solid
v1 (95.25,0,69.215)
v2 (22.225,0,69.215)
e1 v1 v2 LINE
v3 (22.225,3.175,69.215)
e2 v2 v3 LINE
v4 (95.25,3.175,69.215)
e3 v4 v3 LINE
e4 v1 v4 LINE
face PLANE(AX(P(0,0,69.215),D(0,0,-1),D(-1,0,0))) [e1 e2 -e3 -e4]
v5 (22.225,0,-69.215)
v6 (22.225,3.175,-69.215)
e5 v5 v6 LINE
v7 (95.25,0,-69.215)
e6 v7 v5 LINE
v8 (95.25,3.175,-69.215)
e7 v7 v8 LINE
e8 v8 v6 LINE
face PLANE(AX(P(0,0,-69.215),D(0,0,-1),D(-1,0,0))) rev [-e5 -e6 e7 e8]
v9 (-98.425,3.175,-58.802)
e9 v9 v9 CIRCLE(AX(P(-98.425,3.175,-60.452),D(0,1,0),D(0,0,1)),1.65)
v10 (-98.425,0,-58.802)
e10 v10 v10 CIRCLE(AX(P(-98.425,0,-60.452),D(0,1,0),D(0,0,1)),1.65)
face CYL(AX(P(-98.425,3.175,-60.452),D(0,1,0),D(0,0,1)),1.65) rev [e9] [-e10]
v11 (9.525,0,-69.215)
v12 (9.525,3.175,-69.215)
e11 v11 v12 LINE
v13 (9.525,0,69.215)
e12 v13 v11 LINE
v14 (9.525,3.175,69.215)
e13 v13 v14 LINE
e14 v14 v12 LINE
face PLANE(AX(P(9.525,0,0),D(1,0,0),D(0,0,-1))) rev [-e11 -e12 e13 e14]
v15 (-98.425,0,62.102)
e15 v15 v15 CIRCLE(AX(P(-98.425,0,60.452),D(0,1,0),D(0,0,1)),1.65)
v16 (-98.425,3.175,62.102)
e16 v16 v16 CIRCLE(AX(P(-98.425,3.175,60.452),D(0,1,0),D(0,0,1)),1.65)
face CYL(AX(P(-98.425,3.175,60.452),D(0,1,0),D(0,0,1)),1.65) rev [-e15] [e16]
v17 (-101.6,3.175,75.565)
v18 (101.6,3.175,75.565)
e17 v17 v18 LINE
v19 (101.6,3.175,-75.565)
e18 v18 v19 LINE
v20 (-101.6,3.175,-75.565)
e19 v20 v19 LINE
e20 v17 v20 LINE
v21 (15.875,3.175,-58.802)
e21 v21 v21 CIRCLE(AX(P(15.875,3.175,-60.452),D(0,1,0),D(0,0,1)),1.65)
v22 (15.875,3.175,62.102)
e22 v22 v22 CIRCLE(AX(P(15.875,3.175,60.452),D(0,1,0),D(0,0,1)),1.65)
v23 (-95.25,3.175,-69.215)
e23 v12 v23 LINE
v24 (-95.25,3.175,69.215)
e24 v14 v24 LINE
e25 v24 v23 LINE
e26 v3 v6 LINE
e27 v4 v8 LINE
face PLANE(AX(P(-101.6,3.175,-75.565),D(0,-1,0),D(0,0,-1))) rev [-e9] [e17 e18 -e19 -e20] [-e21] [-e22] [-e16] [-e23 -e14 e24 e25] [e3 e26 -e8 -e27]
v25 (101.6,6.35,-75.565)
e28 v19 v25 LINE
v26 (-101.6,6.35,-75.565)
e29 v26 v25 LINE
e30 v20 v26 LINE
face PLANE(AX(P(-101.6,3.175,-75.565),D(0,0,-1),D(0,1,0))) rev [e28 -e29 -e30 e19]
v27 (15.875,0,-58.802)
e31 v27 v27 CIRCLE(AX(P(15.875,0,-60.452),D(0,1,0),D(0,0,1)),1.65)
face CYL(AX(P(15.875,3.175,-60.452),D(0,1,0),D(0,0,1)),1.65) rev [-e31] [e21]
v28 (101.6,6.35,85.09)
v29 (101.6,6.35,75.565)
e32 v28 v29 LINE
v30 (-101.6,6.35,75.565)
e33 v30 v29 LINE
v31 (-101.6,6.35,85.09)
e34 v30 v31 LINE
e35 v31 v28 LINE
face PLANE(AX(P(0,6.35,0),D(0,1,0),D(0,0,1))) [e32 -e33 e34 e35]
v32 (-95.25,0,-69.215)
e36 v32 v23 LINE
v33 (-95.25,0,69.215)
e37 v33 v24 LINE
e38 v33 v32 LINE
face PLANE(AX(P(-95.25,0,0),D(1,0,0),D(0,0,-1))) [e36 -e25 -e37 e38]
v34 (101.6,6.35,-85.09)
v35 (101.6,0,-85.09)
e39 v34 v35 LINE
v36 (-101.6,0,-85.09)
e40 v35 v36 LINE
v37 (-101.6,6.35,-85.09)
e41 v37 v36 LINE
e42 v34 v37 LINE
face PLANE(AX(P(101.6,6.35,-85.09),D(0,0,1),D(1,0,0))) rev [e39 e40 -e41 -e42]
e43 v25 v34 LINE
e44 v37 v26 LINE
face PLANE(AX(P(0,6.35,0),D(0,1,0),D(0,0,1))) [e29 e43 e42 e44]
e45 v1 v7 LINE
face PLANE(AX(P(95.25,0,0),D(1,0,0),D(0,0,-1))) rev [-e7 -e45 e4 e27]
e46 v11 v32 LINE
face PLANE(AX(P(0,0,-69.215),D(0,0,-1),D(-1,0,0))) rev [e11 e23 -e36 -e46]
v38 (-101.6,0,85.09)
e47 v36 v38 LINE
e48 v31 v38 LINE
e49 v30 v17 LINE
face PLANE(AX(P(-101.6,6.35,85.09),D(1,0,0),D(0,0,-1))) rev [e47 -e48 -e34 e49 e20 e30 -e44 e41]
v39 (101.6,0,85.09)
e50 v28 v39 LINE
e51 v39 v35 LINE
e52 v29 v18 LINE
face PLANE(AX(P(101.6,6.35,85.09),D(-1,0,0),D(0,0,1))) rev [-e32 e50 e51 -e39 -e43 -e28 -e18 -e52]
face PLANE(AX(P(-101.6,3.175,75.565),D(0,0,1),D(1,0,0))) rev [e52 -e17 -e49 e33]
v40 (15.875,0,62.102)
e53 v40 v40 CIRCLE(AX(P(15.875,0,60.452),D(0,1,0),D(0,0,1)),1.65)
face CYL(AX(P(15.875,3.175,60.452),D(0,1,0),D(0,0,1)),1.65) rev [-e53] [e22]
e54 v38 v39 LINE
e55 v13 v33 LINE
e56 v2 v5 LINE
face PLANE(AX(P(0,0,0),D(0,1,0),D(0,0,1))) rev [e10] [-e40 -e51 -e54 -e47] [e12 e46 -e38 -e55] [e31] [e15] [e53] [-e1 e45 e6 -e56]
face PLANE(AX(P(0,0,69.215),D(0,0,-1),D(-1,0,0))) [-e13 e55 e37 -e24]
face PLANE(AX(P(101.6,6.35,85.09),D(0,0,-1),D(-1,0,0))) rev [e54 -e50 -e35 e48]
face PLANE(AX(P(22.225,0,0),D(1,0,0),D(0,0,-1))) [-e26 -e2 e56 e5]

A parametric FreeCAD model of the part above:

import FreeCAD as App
import Part
import Sketcher

V = App.Vector
Q = App.Units.Quantity


def add_polygon(sketch, points):
    """Adds a closed chain of lines whose ends are joined by coincident constraints."""
    first, n = sketch.GeometryCount, len(points)
    for a, b in zip(points, points[1:] + points[:1]):
        sketch.addGeometry(Part.LineSegment(App.Vector(*a, 0), App.Vector(*b, 0)), False)
    for i in range(n):
        sketch.addConstraint(Sketcher.Constraint("Coincident", first + i, 2, first + (i + 1) % n, 1))

doc = App.newDocument("Part")
body = doc.addObject("PartDesign::Body", "Body")

sketch1 = body.newObject("Sketcher::SketchObject", "Sketch")
sketch1.AttachmentSupport = (doc.getObject("XZ_Plane"), [""])
sketch1.MapMode = "FlatFace"
add_polygon(sketch1, [(-101.6, -85.09), (-101.6, 85.09), (101.6, 85.09), (101.6, -85.09)])
sketch1.addConstraint([
    Sketcher.Constraint("Vertical", 0),
    Sketcher.Constraint("Horizontal", 1),
    Sketcher.Constraint("Vertical", 2),
    Sketcher.Constraint("Horizontal", 3),
    Sketcher.Constraint("Symmetric", 0, 2, 2, 2, -1, 1),
    Sketcher.Constraint("DistanceX", 1, 1, 1, 2, Q("8 in")),
    Sketcher.Constraint("DistanceY", 0, 1, 0, 2, Q("6.7 in")),
])
pad1 = body.newObject("PartDesign::Pad", "Pad")
pad1.Profile = sketch1
pad1.Length = Q("0.25 in")
pad1.Reversed = True

sketch2 = body.newObject("Sketcher::SketchObject", "Sketch001")
sketch2.AttachmentSupport = (doc.getObject("YZ_Plane"), [""])
sketch2.MapMode = "FlatFace"
sketch2.AttachmentOffset = App.Placement(V(0, 0, 4 * 25.4), App.Rotation())
add_polygon(sketch2, [(6.35, 75.565), (3.175, 75.565), (3.175, -75.565), (6.35, -75.565)])
sketch2.addConstraint([
    Sketcher.Constraint("Horizontal", 0),
    Sketcher.Constraint("Vertical", 1),
    Sketcher.Constraint("Horizontal", 2),
    Sketcher.Constraint("Vertical", 3),
    Sketcher.Constraint("DistanceY", 1, 2, 1, 1, Q("5.95 in")),
    Sketcher.Constraint("DistanceX", 0, 2, 0, 1, Q("0.125 in")),
    Sketcher.Constraint("DistanceX", -1, 1, 2, 2, Q("0.25 in")),
    Sketcher.Constraint("DistanceY", -1, 1, 0, 2, Q("2.975 in")),
])
pocket1 = body.newObject("PartDesign::Pocket", "Pocket")
pocket1.Profile = sketch2
pocket1.Type = "ThroughAll"

sketch3 = body.newObject("Sketcher::SketchObject", "Sketch002")
sketch3.AttachmentSupport = (doc.getObject("XZ_Plane"), [""])
sketch3.MapMode = "FlatFace"
sketch3.AttachmentOffset = App.Placement(V(0, 0, -0.125 * 25.4), App.Rotation())
add_polygon(sketch3, [(-95.25, -69.215), (-95.25, 69.215), (9.525, 69.215), (9.525, -69.215)])
add_polygon(sketch3, [(22.225, -69.215), (22.225, 69.215), (95.25, 69.215), (95.25, -69.215)])
sketch3.addConstraint([
    Sketcher.Constraint("Vertical", 0),
    Sketcher.Constraint("Horizontal", 1),
    Sketcher.Constraint("Vertical", 2),
    Sketcher.Constraint("Horizontal", 3),
    Sketcher.Constraint("Vertical", 4),
    Sketcher.Constraint("Horizontal", 5),
    Sketcher.Constraint("Vertical", 6),
    Sketcher.Constraint("Horizontal", 7),
    Sketcher.Constraint("Symmetric", 3, 2, 5, 2, -1, 1),
    Sketcher.Constraint("Horizontal", 1, 2, 4, 2),
    Sketcher.Constraint("Horizontal", 3, 2, 6, 2),
    Sketcher.Constraint("DistanceY", 0, 1, 0, 2, Q("5.45 in")),
    Sketcher.Constraint("DistanceX", 1, 2, 4, 2, Q("0.5 in")),
    Sketcher.Constraint("DistanceX", 0, 2, 5, 2, Q("7.5 in")),
    Sketcher.Constraint("DistanceX", 1, 1, 1, 2, Q("4.125 in")),
])
pocket2 = body.newObject("PartDesign::Pocket", "Pocket001")
pocket2.Profile = sketch3
pocket2.Type = "ThroughAll"
pocket2.Reversed = True

sketch4 = body.newObject("Sketcher::SketchObject", "Sketch003")
sketch4.AttachmentSupport = (doc.getObject("XZ_Plane"), [""])
sketch4.MapMode = "FlatFace"
sketch4.AttachmentOffset = App.Placement(V(0, 0, -0.125 * 25.4), App.Rotation())
sketch4.addGeometry([
    Part.Circle(V(-98.425, 60.452, 0), V(0, 0, 1), 1.65),
    Part.Circle(V(-98.425, -60.452, 0), V(0, 0, 1), 1.65),
    Part.Circle(V(15.875, -60.452, 0), V(0, 0, 1), 1.65),
    Part.Circle(V(15.875, 60.452, 0), V(0, 0, 1), 1.65),
], False)
sketch4.addConstraint([
    Sketcher.Constraint("Equal", 0, 1),
    Sketcher.Constraint("Equal", 1, 2),
    Sketcher.Constraint("Equal", 2, 3),
    Sketcher.Constraint("Symmetric", 0, 3, 1, 3, -1),
    Sketcher.Constraint("Symmetric", 2, 3, 3, 3, -1),
    Sketcher.Constraint("Horizontal", 1, 3, 2, 3),
    Sketcher.Constraint("DistanceX", 1, 3, 2, 3, Q("4.5 in")),
    Sketcher.Constraint("Diameter", 0, Q("3.3 mm")),
    Sketcher.Constraint("DistanceY", -1, 1, 0, 3, Q("2.38 in")),
    Sketcher.Constraint("DistanceX", 0, 3, -1, 1, Q("3.875 in")),
])
doc.recompute()
hole = body.newObject("PartDesign::Hole", "Hole")
hole.Profile = sketch4
hole.ThreadType = "None"
hole.Diameter = 3.3
hole.DepthType = "Dimension"
hole.Depth = Q("0.39 in")
hole.DrillPoint = "Flat"
hole.Reversed = True

doc.recompute()
